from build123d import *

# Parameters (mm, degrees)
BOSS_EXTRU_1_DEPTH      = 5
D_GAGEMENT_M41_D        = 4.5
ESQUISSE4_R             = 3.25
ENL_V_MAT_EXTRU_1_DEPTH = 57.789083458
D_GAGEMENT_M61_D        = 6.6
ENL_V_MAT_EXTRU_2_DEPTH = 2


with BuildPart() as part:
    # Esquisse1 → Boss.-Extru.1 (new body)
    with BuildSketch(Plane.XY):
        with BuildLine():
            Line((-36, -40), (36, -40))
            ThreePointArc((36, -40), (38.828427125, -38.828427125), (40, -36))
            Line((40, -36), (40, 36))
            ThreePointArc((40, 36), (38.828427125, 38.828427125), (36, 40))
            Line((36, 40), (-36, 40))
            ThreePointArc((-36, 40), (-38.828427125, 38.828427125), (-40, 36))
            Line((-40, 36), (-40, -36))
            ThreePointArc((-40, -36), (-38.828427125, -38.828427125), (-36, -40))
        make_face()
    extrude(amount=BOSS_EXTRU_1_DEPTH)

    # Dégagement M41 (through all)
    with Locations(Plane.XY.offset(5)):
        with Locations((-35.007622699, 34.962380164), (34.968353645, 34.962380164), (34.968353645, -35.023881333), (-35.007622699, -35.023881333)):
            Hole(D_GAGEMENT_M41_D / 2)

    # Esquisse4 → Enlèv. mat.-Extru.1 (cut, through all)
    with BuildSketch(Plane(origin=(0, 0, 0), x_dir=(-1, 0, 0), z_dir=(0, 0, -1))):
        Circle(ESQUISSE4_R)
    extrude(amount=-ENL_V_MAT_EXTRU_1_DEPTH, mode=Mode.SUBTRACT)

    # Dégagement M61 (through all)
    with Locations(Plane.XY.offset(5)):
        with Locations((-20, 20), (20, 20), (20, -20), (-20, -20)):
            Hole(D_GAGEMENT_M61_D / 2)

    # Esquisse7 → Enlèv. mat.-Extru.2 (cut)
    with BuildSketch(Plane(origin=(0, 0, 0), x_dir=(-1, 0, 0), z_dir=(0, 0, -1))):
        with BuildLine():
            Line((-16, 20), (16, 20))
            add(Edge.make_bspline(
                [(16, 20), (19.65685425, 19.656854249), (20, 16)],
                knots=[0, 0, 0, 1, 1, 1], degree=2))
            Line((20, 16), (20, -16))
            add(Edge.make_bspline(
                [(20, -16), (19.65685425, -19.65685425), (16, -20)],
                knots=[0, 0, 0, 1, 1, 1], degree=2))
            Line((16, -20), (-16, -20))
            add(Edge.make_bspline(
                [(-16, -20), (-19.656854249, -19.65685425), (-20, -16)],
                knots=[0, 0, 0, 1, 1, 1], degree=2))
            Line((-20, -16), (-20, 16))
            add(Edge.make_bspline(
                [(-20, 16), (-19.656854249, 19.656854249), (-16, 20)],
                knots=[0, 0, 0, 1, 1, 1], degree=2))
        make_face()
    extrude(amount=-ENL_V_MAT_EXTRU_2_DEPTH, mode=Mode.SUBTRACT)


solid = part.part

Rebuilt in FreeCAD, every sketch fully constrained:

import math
import FreeCAD as App
import Part
import Sketcher

V = App.Vector

doc = App.newDocument("Part")
body = doc.addObject("PartDesign::Body", "Body")

sketch1 = body.newObject("Sketcher::SketchObject", "Sketch")
sketch1.AttachmentSupport = (doc.getObject("XY_Plane"), [""])
sketch1.MapMode = "FlatFace"
sketch1.addGeometry(Part.LineSegment(V(-36, -40, 0), V(36, -40, 0)), False)
sketch1.addGeometry(Part.ArcOfCircle(Part.Circle(V(36, -36, 0), V(0, 0, 1), 4), math.radians(-90), math.radians(0)), False)
sketch1.addGeometry(Part.LineSegment(V(40, -36, 0), V(40, 36, 0)), False)
sketch1.addGeometry(Part.ArcOfCircle(Part.Circle(V(36, 36, 0), V(0, 0, 1), 4), math.radians(0), math.radians(90)), False)
sketch1.addGeometry(Part.LineSegment(V(36, 40, 0), V(-36, 40, 0)), False)
sketch1.addGeometry(Part.ArcOfCircle(Part.Circle(V(-36, 36, 0), V(0, 0, 1), 4), math.radians(90), math.radians(180)), False)
sketch1.addGeometry(Part.LineSegment(V(-40, 36, 0), V(-40, -36, 0)), False)
sketch1.addGeometry(Part.ArcOfCircle(Part.Circle(V(-36, -36, 0), V(0, 0, 1), 4), math.radians(180), math.radians(270)), False)
sketch1.addConstraint(Sketcher.Constraint("Tangent", 0, 2, 1, 1))
sketch1.addConstraint(Sketcher.Constraint("Tangent", 1, 2, 2, 1))
sketch1.addConstraint(Sketcher.Constraint("Tangent", 2, 2, 3, 1))
sketch1.addConstraint(Sketcher.Constraint("Tangent", 3, 2, 4, 1))
sketch1.addConstraint(Sketcher.Constraint("Tangent", 4, 2, 5, 1))
sketch1.addConstraint(Sketcher.Constraint("Tangent", 5, 2, 6, 1))
sketch1.addConstraint(Sketcher.Constraint("Tangent", 6, 2, 7, 1))
sketch1.addConstraint(Sketcher.Constraint("Tangent", 7, 2, 0, 1))
sketch1.addConstraint(Sketcher.Constraint("Horizontal", 0))
sketch1.addConstraint(Sketcher.Constraint("Vertical", 2))
sketch1.addConstraint(Sketcher.Constraint("Horizontal", 4))
sketch1.addConstraint(Sketcher.Constraint("Vertical", 6))
sketch1.addConstraint(Sketcher.Constraint("Equal", 1, 3))
sketch1.addConstraint(Sketcher.Constraint("Equal", 3, 5))
sketch1.addConstraint(Sketcher.Constraint("Equal", 5, 7))
sketch1.addConstraint(Sketcher.Constraint("Symmetric", 1, 3, 5, 3, -1, 1))
sketch1.addConstraint(Sketcher.Constraint("Equal", 4, 2))
sketch1.addConstraint(Sketcher.Constraint("Radius", 1, 4.0))
sketch1.addConstraint(Sketcher.Constraint("DistanceX", 0, 1, 0, 2, 72.0))
pad1 = body.newObject("PartDesign::Pad", "Pad")
pad1.Profile = sketch1
pad1.Length = 5

sketch2 = body.newObject("Sketcher::SketchObject", "Sketch001")
sketch2.AttachmentSupport = (doc.getObject("XY_Plane"), [""])
sketch2.MapMode = "FlatFace"
sketch2.AttachmentOffset = App.Placement(V(0, 0, 5), App.Rotation())
sketch2.addGeometry(Part.Circle(V(-35.007623, 34.96238, 0), V(0, 0, 1), 2.25), False)
sketch2.addGeometry(Part.Circle(V(34.968354, 34.96238, 0), V(0, 0, 1), 2.25), False)
sketch2.addGeometry(Part.Circle(V(34.968354, -35.023881, 0), V(0, 0, 1), 2.25), False)
sketch2.addGeometry(Part.Circle(V(-35.007623, -35.023881, 0), V(0, 0, 1), 2.25), False)
sketch2.addConstraint(Sketcher.Constraint("Equal", 0, 1))
sketch2.addConstraint(Sketcher.Constraint("Equal", 1, 2))
sketch2.addConstraint(Sketcher.Constraint("Equal", 2, 3))
sketch2.addConstraint(Sketcher.Constraint("Horizontal", 0, 3, 1, 3))
sketch2.addConstraint(Sketcher.Constraint("Horizontal", 2, 3, 3, 3))
sketch2.addConstraint(Sketcher.Constraint("Vertical", 1, 3, 2, 3))
sketch2.addConstraint(Sketcher.Constraint("Vertical", 0, 3, 3, 3))
sketch2.addConstraint(Sketcher.Constraint("Diameter", 0, 4.5))
sketch2.addConstraint(Sketcher.Constraint("DistanceY", -1, 1, 0, 3, 34.96238))
sketch2.addConstraint(Sketcher.Constraint("DistanceY", 2, 3, -1, 1, 35.023881))
sketch2.addConstraint(Sketcher.Constraint("DistanceX", 0, 3, -1, 1, 35.007623))
sketch2.addConstraint(Sketcher.Constraint("DistanceX", -1, 1, 1, 3, 34.968354))
doc.recompute()
hole = body.newObject("PartDesign::Hole", "Hole")
hole.Profile = sketch2
hole.ThreadType = "None"
hole.Diameter = 4.5
hole.DepthType = "ThroughAll"

sketch3 = body.newObject("Sketcher::SketchObject", "Sketch002")
sketch3.AttachmentSupport = (doc.getObject("XY_Plane"), [""])
sketch3.MapMode = "FlatFace"
sketch3.addGeometry(Part.Circle(V(0, 0, 0), V(0, 0, 1), 3.25), False)
sketch3.addConstraint(Sketcher.Constraint("Coincident", 0, 3, -1, 1))
sketch3.addConstraint(Sketcher.Constraint("Diameter", 0, 6.5))
pocket1 = body.newObject("PartDesign::Pocket", "Pocket")
pocket1.Profile = sketch3
pocket1.Type = "ThroughAll"
pocket1.Reversed = True

sketch4 = body.newObject("Sketcher::SketchObject", "Sketch003")
sketch4.AttachmentSupport = (doc.getObject("XY_Plane"), [""])
sketch4.MapMode = "FlatFace"
sketch4.AttachmentOffset = App.Placement(V(0, 0, 5), App.Rotation())
sketch4.addGeometry(Part.Circle(V(-20, 20, 0), V(0, 0, 1), 3.3), False)
sketch4.addGeometry(Part.Circle(V(20, 20, 0), V(0, 0, 1), 3.3), False)
sketch4.addGeometry(Part.Circle(V(20, -20, 0), V(0, 0, 1), 3.3), False)
sketch4.addGeometry(Part.Circle(V(-20, -20, 0), V(0, 0, 1), 3.3), False)
sketch4.addConstraint(Sketcher.Constraint("Equal", 0, 1))
sketch4.addConstraint(Sketcher.Constraint("Equal", 1, 2))
sketch4.addConstraint(Sketcher.Constraint("Equal", 2, 3))
sketch4.addConstraint(Sketcher.Constraint("Symmetric", 0, 3, 2, 3, -1, 1))
sketch4.addConstraint(Sketcher.Constraint("Symmetric", 1, 3, 3, 3, -1, 1))
sketch4.addConstraint(Sketcher.Constraint("Symmetric", 0, 3, 1, 3, -2))
sketch4.addConstraint(Sketcher.Constraint("Diameter", 0, 6.6))
sketch4.addConstraint(Sketcher.Constraint("DistanceX", 0, 3, -1, 1, 20.0))
sketch4.addConstraint(Sketcher.Constraint("DistanceY", -1, 1, 0, 3, 20.0))
doc.recompute()
hole2 = body.newObject("PartDesign::Hole", "Hole001")
hole2.Profile = sketch4
hole2.ThreadType = "None"
hole2.Diameter = 6.6
hole2.DepthType = "ThroughAll"

sketch5 = body.newObject("Sketcher::SketchObject", "Sketch004")
sketch5.AttachmentSupport = (doc.getObject("XY_Plane"), [""])
sketch5.MapMode = "FlatFace"
sketch5.addGeometry(Part.LineSegment(V(-16, 20, 0), V(16, 20, 0)), False)
sketch5.addGeometry(Part.BSplineCurve([V(20, 16, 0), V(19.656854, 19.656854, 0), V(16, 20, 0)], [3, 3], [0, 1], False, 2, [1, 1, 1], False), False)
sketch5.addGeometry(Part.LineSegment(V(20, 16, 0), V(20, -16, 0)), False)
sketch5.addGeometry(Part.BSplineCurve([V(16, -20, 0), V(19.656854, -19.656854, 0), V(20, -16, 0)], [3, 3], [0, 1], False, 2, [1, 1, 1], False), False)
sketch5.addGeometry(Part.LineSegment(V(16, -20, 0), V(-16, -20, 0)), False)
sketch5.addGeometry(Part.BSplineCurve([V(-20, -16, 0), V(-19.656854, -19.656854, 0), V(-16, -20, 0)], [3, 3], [0, 1], False, 2, [1, 1, 1], False), False)
sketch5.addGeometry(Part.LineSegment(V(-20, -16, 0), V(-20, 16, 0)), False)
sketch5.addGeometry(Part.BSplineCurve([V(-16, 20, 0), V(-19.656854, 19.656854, 0), V(-20, 16, 0)], [3, 3], [0, 1], False, 2, [1, 1, 1], False), False)
sketch5.addConstraint(Sketcher.Constraint("Block", 1))
sketch5.addConstraint(Sketcher.Constraint("Block", 3))
sketch5.addConstraint(Sketcher.Constraint("Block", 5))
sketch5.addConstraint(Sketcher.Constraint("Block", 7))
sketch5.addConstraint(Sketcher.Constraint("Coincident", 0, 2, 1, 2))
sketch5.addConstraint(Sketcher.Constraint("Coincident", 1, 1, 2, 1))
sketch5.addConstraint(Sketcher.Constraint("Coincident", 2, 2, 3, 2))
sketch5.addConstraint(Sketcher.Constraint("Coincident", 3, 1, 4, 1))
sketch5.addConstraint(Sketcher.Constraint("Coincident", 4, 2, 5, 2))
sketch5.addConstraint(Sketcher.Constraint("Coincident", 5, 1, 6, 1))
sketch5.addConstraint(Sketcher.Constraint("Coincident", 6, 2, 7, 2))
sketch5.addConstraint(Sketcher.Constraint("Coincident", 7, 1, 0, 1))
pocket2 = body.newObject("PartDesign::Pocket", "Pocket001")
pocket2.Profile = sketch5
pocket2.Length = 2
pocket2.Reversed = True

doc.recompute()
